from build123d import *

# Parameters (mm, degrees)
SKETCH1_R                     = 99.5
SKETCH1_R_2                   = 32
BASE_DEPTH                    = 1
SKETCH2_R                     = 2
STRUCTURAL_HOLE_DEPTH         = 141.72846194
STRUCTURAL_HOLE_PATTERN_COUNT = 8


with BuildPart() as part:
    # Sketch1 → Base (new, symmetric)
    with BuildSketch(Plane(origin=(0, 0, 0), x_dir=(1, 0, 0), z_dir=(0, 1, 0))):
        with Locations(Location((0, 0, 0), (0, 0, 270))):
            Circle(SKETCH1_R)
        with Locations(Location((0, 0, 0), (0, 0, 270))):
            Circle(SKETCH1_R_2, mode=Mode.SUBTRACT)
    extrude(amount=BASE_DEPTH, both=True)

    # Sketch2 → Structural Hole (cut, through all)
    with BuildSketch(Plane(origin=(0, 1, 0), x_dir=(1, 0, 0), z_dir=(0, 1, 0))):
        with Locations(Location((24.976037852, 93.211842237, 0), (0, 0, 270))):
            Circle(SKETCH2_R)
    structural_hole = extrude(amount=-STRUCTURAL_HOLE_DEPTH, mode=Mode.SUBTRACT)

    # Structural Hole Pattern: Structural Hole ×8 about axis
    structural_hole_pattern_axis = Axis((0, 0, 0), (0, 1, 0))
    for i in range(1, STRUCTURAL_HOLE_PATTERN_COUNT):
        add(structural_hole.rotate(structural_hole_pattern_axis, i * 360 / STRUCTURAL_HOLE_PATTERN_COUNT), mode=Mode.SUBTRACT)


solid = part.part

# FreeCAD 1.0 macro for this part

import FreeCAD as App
import Part
import Sketcher

V = App.Vector
Q = App.Units.Quantity

doc = App.newDocument("Part")
params = doc.addObject("Spreadsheet::Sheet", "Params")
for row, (alias, value) in enumerate([
    ("sketch1_diameter", "199 mm"),
    ("sketch1_diameter2", "64 mm"),
    ("pad1_length", "2 mm"),
    ("sketch2_diameter", "4 mm"),
], start=1):
    params.set(f"A{row}", alias)
    params.set(f"B{row}", "=" + value)
    params.setAlias(f"B{row}", alias)

body = doc.addObject("PartDesign::Body", "Body")

sketch1 = body.newObject("Sketcher::SketchObject", "Sketch")
sketch1.AttachmentSupport = (doc.getObject("XZ_Plane"), [""])
sketch1.MapMode = "FlatFace"
sketch1.addGeometry(Part.Circle(V(0, 0, 0), V(0, 0, 1), 100), False)
sketch1.addGeometry(Part.Circle(V(0, 0, 0), V(0, 0, 1), 32), False)
sketch1.addConstraint(Sketcher.Constraint("Coincident", 0, 3, -1, 1))
sketch1.addConstraint(Sketcher.Constraint("Coincident", 1, 3, -1, 1))
sketch1.addConstraint(Sketcher.Constraint("Diameter", 0, Q("199 mm")))
sketch1.addConstraint(Sketcher.Constraint("Diameter", 1, Q("64 mm")))
sketch1.setExpression("Constraints[2]", "Params.sketch1_diameter")
sketch1.setExpression("Constraints[3]", "Params.sketch1_diameter2")
pad1 = body.newObject("PartDesign::Pad", "Pad")
pad1.Profile = sketch1
pad1.setExpression("Length", "Params.pad1_length")
pad1.Midplane = True

sketch2 = body.newObject("Sketcher::SketchObject", "Sketch001")
sketch2.AttachmentSupport = (doc.getObject("XZ_Plane"), [""])
sketch2.MapMode = "FlatFace"
sketch2.AttachmentOffset = App.Placement(V(0, 0, -1), App.Rotation())
sketch2.addGeometry(Part.Circle(V(25, -93.2, 0), V(0, 0, 1), 2), False)
sketch2.addConstraint(Sketcher.Constraint("Diameter", 0, Q("4 mm")))
sketch2.addConstraint(Sketcher.Constraint("DistanceX", -1, 1, 0, 3, Q("24.976038 mm")))
sketch2.addConstraint(Sketcher.Constraint("DistanceY", 0, 3, -1, 1, Q("93.211842 mm")))
sketch2.setExpression("Constraints[0]", "Params.sketch2_diameter")
pocket1 = body.newObject("PartDesign::Pocket", "Pocket")
pocket1.Profile = sketch2
pocket1.Type = "ThroughAll"
pocket1.Reversed = True
doc.recompute()

polarpattern = body.newObject("PartDesign::PolarPattern", "PolarPattern")
polarpattern.Originals = [pocket1]
polarpattern.Axis = (doc.getObject("Y_Axis"), [""])
polarpattern.Angle = 360
polarpattern.Occurrences = 8
body.Tip = polarpattern

doc.recompute()
